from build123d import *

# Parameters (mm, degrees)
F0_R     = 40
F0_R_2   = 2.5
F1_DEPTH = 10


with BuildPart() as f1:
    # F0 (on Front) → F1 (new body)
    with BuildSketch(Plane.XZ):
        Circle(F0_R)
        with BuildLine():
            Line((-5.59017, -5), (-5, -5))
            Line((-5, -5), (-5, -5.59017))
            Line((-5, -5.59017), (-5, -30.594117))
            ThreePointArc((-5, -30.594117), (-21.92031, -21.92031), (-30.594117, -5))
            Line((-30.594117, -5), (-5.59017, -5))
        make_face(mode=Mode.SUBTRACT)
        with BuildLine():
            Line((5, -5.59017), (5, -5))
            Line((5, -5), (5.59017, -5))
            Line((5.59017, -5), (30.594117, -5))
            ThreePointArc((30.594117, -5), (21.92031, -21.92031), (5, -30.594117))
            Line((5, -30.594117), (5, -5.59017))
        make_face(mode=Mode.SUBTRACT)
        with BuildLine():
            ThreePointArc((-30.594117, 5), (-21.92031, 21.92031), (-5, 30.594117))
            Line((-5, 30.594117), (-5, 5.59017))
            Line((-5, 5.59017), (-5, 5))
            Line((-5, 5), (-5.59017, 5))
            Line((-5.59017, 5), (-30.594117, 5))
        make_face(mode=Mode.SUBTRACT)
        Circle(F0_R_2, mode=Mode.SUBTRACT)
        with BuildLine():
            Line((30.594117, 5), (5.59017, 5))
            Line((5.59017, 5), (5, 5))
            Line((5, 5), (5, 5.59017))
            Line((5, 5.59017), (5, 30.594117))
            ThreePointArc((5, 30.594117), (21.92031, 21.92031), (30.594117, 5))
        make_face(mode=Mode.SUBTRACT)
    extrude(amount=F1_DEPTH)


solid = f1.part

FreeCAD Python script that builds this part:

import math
import FreeCAD as App
import Part
import Sketcher

doc = App.newDocument("Part")
body = doc.addObject("PartDesign::Body", "Body")

# Sketch on XZ plane
sketch1 = doc.addObject("Sketcher::SketchObject", "Sketch")
body.addObject(sketch1)
sketch1.AttachmentSupport = (doc.XZ_Plane, [""])
sketch1.MapMode = "FlatFace"
sketch1.addGeometry(Part.Circle(App.Vector(0, 0, 0), App.Vector(0, 0, 1), 40), False)
sketch1.addGeometry(Part.LineSegment(App.Vector(-30.594117, -5, 0), App.Vector(-5, -5, 0)), False)
sketch1.addGeometry(Part.LineSegment(App.Vector(-5, -5, 0), App.Vector(-5, -30.594117, 0)), False)
sketch1.addGeometry(Part.ArcOfCircle(Part.Circle(App.Vector(0.000001, 0.000001, 0), App.Vector(0, 0, 1), 31.000001), math.radians(-170.7182), math.radians(-99.2818)), False)
sketch1.addGeometry(Part.Circle(App.Vector(0, 0, 0), App.Vector(0, 0, 1), 2.5), False)
sketch1.addGeometry(Part.LineSegment(App.Vector(5, -30.594117, 0), App.Vector(5, -5, 0)), False)
sketch1.addGeometry(Part.LineSegment(App.Vector(5, -5, 0), App.Vector(30.594117, -5, 0)), False)
sketch1.addGeometry(Part.ArcOfCircle(Part.Circle(App.Vector(-0.000001, 0.000001, 0), App.Vector(0, 0, 1), 31.000001), math.radians(-80.7182), math.radians(-9.2818)), False)
sketch1.addGeometry(Part.LineSegment(App.Vector(-5, 5, 0), App.Vector(-30.594117, 5, 0)), False)
sketch1.addGeometry(Part.ArcOfCircle(Part.Circle(App.Vector(0.000001, -0.000001, 0), App.Vector(0, 0, 1), 31.000001), math.radians(99.2818), math.radians(170.7182)), False)
sketch1.addGeometry(Part.LineSegment(App.Vector(-5, 30.594117, 0), App.Vector(-5, 5, 0)), False)
sketch1.addGeometry(Part.ArcOfCircle(Part.Circle(App.Vector(-0.000001, -0.000001, 0), App.Vector(0, 0, 1), 31.000001), math.radians(9.2818), math.radians(80.7182)), False)
sketch1.addGeometry(Part.LineSegment(App.Vector(30.594117, 5, 0), App.Vector(5, 5, 0)), False)
sketch1.addGeometry(Part.LineSegment(App.Vector(5, 5, 0), App.Vector(5, 30.594117, 0)), False)
sketch1.addConstraint(Sketcher.Constraint("Coincident", 1, 2, 2, 1))
sketch1.addConstraint(Sketcher.Constraint("Coincident", 2, 2, 3, 2))
sketch1.addConstraint(Sketcher.Constraint("Coincident", 3, 1, 1, 1))
sketch1.addConstraint(Sketcher.Constraint("Coincident", 5, 2, 6, 1))
sketch1.addConstraint(Sketcher.Constraint("Coincident", 6, 2, 7, 2))
sketch1.addConstraint(Sketcher.Constraint("Coincident", 7, 1, 5, 1))
sketch1.addConstraint(Sketcher.Constraint("Coincident", 8, 2, 9, 2))
sketch1.addConstraint(Sketcher.Constraint("Coincident", 9, 1, 10, 1))
sketch1.addConstraint(Sketcher.Constraint("Coincident", 10, 2, 8, 1))
sketch1.addConstraint(Sketcher.Constraint("Coincident", 11, 1, 12, 1))
sketch1.addConstraint(Sketcher.Constraint("Coincident", 12, 2, 13, 1))
sketch1.addConstraint(Sketcher.Constraint("Coincident", 13, 2, 11, 2))
sketch1.addConstraint(Sketcher.Constraint("Horizontal", 1))
sketch1.addConstraint(Sketcher.Constraint("Vertical", 2))
sketch1.addConstraint(Sketcher.Constraint("Vertical", 5))
sketch1.addConstraint(Sketcher.Constraint("Horizontal", 6))
sketch1.addConstraint(Sketcher.Constraint("Horizontal", 8))
sketch1.addConstraint(Sketcher.Constraint("Vertical", 10))
sketch1.addConstraint(Sketcher.Constraint("Horizontal", 12))
sketch1.addConstraint(Sketcher.Constraint("Vertical", 13))
sketch1.addConstraint(Sketcher.Constraint("Coincident", 0, 3, -1, 1))
sketch1.addConstraint(Sketcher.Constraint("Coincident", 3, 3, -1, 1))
sketch1.addConstraint(Sketcher.Constraint("Coincident", 4, 3, -1, 1))
sketch1.addConstraint(Sketcher.Constraint("Coincident", 7, 3, -1, 1))
sketch1.addConstraint(Sketcher.Constraint("Coincident", 9, 3, -1, 1))
sketch1.addConstraint(Sketcher.Constraint("Coincident", 11, 3, -1, 1))
sketch1.addConstraint(Sketcher.Constraint("Equal", 3, 7))
sketch1.addConstraint(Sketcher.Constraint("Equal", 7, 9))
sketch1.addConstraint(Sketcher.Constraint("Equal", 9, 11))
sketch1.addConstraint(Sketcher.Constraint("Symmetric", 5, 2, 10, 2, -1, 1))
sketch1.addConstraint(Sketcher.Constraint("Symmetric", 1, 2, 12, 2, -1, 1))
sketch1.addConstraint(Sketcher.Constraint("Symmetric", 1, 2, 5, 2, -2))
sketch1.addConstraint(Sketcher.Constraint("Equal", 12, 2))
sketch1.addConstraint(Sketcher.Constraint("Diameter", 0, 80.0))
sketch1.addConstraint(Sketcher.Constraint("Diameter", 4, 5.0))
sketch1.addConstraint(Sketcher.Constraint("Radius", 3, 31.000001))
sketch1.addConstraint(Sketcher.Constraint("DistanceX", 1, 2, -1, 1, 5.0))
pad1 = doc.addObject("PartDesign::Pad", "Pad")
body.addObject(pad1)
pad1.Profile = sketch1
pad1.Length = 10

doc.recompute()
